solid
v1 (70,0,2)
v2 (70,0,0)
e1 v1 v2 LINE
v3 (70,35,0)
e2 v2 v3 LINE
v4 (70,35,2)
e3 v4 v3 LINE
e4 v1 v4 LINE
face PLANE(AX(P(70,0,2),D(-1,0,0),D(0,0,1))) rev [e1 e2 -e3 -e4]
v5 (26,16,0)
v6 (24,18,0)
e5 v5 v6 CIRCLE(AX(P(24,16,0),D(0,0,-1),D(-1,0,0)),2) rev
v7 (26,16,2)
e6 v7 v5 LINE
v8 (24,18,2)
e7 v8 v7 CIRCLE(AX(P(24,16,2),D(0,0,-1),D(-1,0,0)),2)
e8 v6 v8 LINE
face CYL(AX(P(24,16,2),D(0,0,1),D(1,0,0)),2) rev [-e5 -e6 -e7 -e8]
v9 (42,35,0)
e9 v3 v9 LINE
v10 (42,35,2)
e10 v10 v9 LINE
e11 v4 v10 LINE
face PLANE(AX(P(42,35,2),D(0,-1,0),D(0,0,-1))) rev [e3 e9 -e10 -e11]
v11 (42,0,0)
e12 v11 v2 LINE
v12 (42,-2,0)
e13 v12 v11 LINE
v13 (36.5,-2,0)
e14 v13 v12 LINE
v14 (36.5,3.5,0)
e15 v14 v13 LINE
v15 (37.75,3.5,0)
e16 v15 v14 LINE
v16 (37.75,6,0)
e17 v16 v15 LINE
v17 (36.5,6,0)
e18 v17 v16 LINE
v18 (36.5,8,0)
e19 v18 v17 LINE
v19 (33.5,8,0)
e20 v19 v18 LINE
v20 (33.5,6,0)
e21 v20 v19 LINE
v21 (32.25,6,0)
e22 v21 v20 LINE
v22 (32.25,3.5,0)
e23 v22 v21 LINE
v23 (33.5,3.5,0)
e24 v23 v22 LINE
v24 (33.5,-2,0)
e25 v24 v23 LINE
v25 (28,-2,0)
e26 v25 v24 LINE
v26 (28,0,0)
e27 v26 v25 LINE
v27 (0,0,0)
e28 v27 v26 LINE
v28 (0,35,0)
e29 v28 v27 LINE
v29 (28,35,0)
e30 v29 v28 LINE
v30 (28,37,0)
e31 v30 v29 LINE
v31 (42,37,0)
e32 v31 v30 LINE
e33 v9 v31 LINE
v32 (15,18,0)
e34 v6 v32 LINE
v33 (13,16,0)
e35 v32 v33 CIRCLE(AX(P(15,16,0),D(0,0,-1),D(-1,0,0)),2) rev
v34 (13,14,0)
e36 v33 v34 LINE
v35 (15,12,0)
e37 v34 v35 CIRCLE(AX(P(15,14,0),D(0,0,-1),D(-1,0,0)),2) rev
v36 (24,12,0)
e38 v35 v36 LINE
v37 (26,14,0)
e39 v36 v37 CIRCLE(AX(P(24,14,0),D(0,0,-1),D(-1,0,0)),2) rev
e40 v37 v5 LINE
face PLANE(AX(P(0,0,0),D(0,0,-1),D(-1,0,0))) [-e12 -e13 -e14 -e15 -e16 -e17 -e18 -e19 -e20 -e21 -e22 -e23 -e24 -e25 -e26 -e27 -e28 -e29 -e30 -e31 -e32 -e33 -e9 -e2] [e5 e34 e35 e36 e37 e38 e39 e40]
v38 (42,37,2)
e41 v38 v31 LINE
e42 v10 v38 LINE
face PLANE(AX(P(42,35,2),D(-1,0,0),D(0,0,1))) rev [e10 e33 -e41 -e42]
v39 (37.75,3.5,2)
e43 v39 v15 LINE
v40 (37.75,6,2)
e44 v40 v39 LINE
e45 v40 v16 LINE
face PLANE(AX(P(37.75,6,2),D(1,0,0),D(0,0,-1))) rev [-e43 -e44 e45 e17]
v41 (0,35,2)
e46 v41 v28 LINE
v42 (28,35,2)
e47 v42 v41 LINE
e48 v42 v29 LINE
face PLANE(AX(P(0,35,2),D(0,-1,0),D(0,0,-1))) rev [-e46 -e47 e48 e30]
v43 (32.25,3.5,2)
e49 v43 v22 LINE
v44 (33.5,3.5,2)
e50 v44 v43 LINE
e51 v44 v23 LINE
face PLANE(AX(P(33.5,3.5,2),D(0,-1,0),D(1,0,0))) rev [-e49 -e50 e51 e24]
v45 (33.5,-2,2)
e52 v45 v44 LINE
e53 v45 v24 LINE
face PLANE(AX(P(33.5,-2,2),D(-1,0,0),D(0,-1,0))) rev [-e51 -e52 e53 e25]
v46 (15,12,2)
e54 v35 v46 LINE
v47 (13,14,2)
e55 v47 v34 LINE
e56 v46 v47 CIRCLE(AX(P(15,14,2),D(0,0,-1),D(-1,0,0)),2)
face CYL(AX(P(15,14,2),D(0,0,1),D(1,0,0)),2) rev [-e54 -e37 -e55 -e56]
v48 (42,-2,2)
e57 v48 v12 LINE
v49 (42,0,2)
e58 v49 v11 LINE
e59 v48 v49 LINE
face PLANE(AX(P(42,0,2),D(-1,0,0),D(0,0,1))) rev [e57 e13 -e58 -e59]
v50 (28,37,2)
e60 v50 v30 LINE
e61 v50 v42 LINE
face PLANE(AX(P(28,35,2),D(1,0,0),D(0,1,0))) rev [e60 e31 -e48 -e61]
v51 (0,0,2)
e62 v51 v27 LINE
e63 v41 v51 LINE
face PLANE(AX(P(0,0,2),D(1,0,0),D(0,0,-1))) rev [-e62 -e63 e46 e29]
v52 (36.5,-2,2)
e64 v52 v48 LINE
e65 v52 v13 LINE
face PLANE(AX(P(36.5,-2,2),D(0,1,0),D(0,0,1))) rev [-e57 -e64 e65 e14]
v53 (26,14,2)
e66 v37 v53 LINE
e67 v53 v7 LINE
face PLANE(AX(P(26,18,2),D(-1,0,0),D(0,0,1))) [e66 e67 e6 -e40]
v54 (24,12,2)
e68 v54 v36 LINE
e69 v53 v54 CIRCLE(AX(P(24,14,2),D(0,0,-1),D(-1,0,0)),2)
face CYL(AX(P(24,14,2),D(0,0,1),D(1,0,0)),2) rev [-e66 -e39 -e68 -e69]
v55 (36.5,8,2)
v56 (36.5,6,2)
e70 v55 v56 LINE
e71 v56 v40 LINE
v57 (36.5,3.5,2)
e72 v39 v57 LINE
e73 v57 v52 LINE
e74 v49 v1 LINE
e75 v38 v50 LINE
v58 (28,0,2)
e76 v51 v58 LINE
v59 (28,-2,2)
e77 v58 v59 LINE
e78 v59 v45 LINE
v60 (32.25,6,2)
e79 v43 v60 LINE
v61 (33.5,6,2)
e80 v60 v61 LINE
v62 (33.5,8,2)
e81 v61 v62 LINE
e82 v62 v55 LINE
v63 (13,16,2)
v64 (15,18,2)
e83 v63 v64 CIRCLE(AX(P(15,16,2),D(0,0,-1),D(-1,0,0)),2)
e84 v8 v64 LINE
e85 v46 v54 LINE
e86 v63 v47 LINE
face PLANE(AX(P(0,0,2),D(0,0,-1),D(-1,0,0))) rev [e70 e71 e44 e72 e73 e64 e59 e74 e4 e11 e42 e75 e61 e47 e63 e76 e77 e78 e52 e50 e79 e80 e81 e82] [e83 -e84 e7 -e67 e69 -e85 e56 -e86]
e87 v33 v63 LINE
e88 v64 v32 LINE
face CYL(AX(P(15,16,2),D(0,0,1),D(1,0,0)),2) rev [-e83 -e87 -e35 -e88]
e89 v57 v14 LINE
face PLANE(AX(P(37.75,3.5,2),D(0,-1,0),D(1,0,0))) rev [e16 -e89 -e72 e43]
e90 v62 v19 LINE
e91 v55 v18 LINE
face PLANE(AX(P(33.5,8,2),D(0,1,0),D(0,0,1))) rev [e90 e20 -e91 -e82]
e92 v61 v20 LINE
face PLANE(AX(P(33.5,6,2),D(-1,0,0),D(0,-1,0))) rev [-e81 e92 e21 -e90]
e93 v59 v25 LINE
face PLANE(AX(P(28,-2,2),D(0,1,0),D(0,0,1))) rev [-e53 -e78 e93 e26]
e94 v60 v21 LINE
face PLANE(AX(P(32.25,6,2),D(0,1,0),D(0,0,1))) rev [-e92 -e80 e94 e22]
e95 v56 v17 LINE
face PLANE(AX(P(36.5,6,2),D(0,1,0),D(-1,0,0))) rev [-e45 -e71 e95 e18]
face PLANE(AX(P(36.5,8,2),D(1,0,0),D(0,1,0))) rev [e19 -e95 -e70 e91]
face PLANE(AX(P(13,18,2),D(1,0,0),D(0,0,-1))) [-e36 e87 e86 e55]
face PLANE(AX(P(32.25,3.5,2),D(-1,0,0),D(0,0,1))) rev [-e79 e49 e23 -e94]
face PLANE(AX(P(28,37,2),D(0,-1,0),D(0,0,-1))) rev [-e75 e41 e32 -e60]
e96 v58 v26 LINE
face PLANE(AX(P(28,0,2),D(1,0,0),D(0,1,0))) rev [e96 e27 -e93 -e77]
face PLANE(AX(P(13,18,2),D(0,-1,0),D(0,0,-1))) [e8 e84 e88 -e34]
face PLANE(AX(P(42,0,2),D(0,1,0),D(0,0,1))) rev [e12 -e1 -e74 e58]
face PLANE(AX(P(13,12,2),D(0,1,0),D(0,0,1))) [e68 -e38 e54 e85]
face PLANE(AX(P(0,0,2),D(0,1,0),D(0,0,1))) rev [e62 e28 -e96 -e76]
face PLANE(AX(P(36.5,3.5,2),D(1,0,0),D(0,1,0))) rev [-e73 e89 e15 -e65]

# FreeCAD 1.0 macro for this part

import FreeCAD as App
import Part
import Sketcher
from FreeCAD import Vector
Q = App.Units.Quantity


def edges_at(feature, points):
    """Names of the edges that pass closest to the given points."""
    edges = feature.Shape.Edges
    near = lambda p: min(range(len(edges)), key=lambda i: edges[i].distToShape(Part.Vertex(*p))[0])
    return sorted({f"Edge{near(p) + 1}" for p in points})

doc = App.newDocument("Part")
body = doc.addObject("PartDesign::Body", "Body")

# Sketch on XY plane
sketch1 = doc.addObject("Sketcher::SketchObject", "Sketch")
body.addObject(sketch1)
sketch1.AttachmentSupport = (doc.XY_Plane, [""])
sketch1.MapMode = "FlatFace"
sketch1.addGeometry([
    Part.LineSegment(Vector(70, 35, 0), Vector(42, 35, 0)),  # 0
    Part.LineSegment(Vector(42, 35, 0), Vector(42, 37, 0)),  # 1
    Part.LineSegment(Vector(42, 37, 0), Vector(28, 37, 0)),  # 2
    Part.LineSegment(Vector(28, 37, 0), Vector(28, 35, 0)),  # 3
    Part.LineSegment(Vector(28, 35, 0), Vector(0, 35, 0)),  # 4
    Part.LineSegment(Vector(0, 35, 0), Vector(0, 0, 0)),  # 5
    Part.LineSegment(Vector(0, 0, 0), Vector(28, 0, 0)),  # 6
    Part.LineSegment(Vector(28, 0, 0), Vector(28, -2, 0)),  # 7
    Part.LineSegment(Vector(28, -2, 0), Vector(33.5, -2, 0)),  # 8
    Part.LineSegment(Vector(33.5, -2, 0), Vector(33.5, 3.5, 0)),  # 9
    Part.LineSegment(Vector(33.5, 3.5, 0), Vector(32.25, 3.5, 0)),  # 10
    Part.LineSegment(Vector(32.25, 3.5, 0), Vector(32.25, 6, 0)),  # 11
    Part.LineSegment(Vector(32.25, 6, 0), Vector(33.5, 6, 0)),  # 12
    Part.LineSegment(Vector(33.5, 6, 0), Vector(33.5, 8, 0)),  # 13
    Part.LineSegment(Vector(33.5, 8, 0), Vector(36.5, 8, 0)),  # 14
    Part.LineSegment(Vector(36.5, 8, 0), Vector(36.5, 6, 0)),  # 15
    Part.LineSegment(Vector(36.5, 6, 0), Vector(37.75, 6, 0)),  # 16
    Part.LineSegment(Vector(37.75, 6, 0), Vector(37.75, 3.5, 0)),  # 17
    Part.LineSegment(Vector(37.75, 3.5, 0), Vector(36.5, 3.5, 0)),  # 18
    Part.LineSegment(Vector(36.5, 3.5, 0), Vector(36.5, -2, 0)),  # 19
    Part.LineSegment(Vector(36.5, -2, 0), Vector(42, -2, 0)),  # 20
    Part.LineSegment(Vector(42, -2, 0), Vector(42, 0, 0)),  # 21
    Part.LineSegment(Vector(42, 0, 0), Vector(70, 0, 0)),  # 22
    Part.LineSegment(Vector(70, 0, 0), Vector(70, 35, 0)),  # 23
    Part.LineSegment(Vector(13, 12, 0), Vector(13, 18, 0)),  # 24
    Part.LineSegment(Vector(13, 18, 0), Vector(26, 18, 0)),  # 25
    Part.LineSegment(Vector(26, 18, 0), Vector(26, 12, 0)),  # 26
    Part.LineSegment(Vector(26, 12, 0), Vector(13, 12, 0)),  # 27
], False)
sketch1.addConstraint([
    Sketcher.Constraint("Coincident", 0, 2, 1, 1),
    Sketcher.Constraint("Coincident", 1, 2, 2, 1),
    Sketcher.Constraint("Coincident", 2, 2, 3, 1),
    Sketcher.Constraint("Coincident", 3, 2, 4, 1),
    Sketcher.Constraint("Coincident", 4, 2, 5, 1),
    Sketcher.Constraint("Coincident", 5, 2, 6, 1),
    Sketcher.Constraint("Coincident", 6, 2, 7, 1),
    Sketcher.Constraint("Coincident", 7, 2, 8, 1),
    Sketcher.Constraint("Coincident", 8, 2, 9, 1),
    Sketcher.Constraint("Coincident", 9, 2, 10, 1),
    Sketcher.Constraint("Coincident", 10, 2, 11, 1),
    Sketcher.Constraint("Coincident", 11, 2, 12, 1),
    Sketcher.Constraint("Coincident", 12, 2, 13, 1),
    Sketcher.Constraint("Coincident", 13, 2, 14, 1),
    Sketcher.Constraint("Coincident", 14, 2, 15, 1),
    Sketcher.Constraint("Coincident", 15, 2, 16, 1),
    Sketcher.Constraint("Coincident", 16, 2, 17, 1),
    Sketcher.Constraint("Coincident", 17, 2, 18, 1),
    Sketcher.Constraint("Coincident", 18, 2, 19, 1),
    Sketcher.Constraint("Coincident", 19, 2, 20, 1),
    Sketcher.Constraint("Coincident", 20, 2, 21, 1),
    Sketcher.Constraint("Coincident", 21, 2, 22, 1),
    Sketcher.Constraint("Coincident", 22, 2, 23, 1),
    Sketcher.Constraint("Coincident", 23, 2, 0, 1),
    Sketcher.Constraint("Coincident", 24, 2, 25, 1),
    Sketcher.Constraint("Coincident", 25, 2, 26, 1),
    Sketcher.Constraint("Coincident", 26, 2, 27, 1),
    Sketcher.Constraint("Coincident", 27, 2, 24, 1),
    Sketcher.Constraint("Horizontal", 0),
    Sketcher.Constraint("Vertical", 1),
    Sketcher.Constraint("Horizontal", 2),
    Sketcher.Constraint("Vertical", 3),
    Sketcher.Constraint("Horizontal", 4),
    Sketcher.Constraint("Vertical", 5),
    Sketcher.Constraint("Horizontal", 6),
    Sketcher.Constraint("Vertical", 7),
    Sketcher.Constraint("Horizontal", 8),
    Sketcher.Constraint("Vertical", 9),
    Sketcher.Constraint("Horizontal", 10),
    Sketcher.Constraint("Vertical", 11),
    Sketcher.Constraint("Horizontal", 12),
    Sketcher.Constraint("Vertical", 13),
    Sketcher.Constraint("Horizontal", 14),
    Sketcher.Constraint("Vertical", 15),
    Sketcher.Constraint("Horizontal", 16),
    Sketcher.Constraint("Vertical", 17),
    Sketcher.Constraint("Horizontal", 18),
    Sketcher.Constraint("Vertical", 19),
    Sketcher.Constraint("Horizontal", 20),
    Sketcher.Constraint("Vertical", 21),
    Sketcher.Constraint("Horizontal", 22),
    Sketcher.Constraint("Vertical", 23),
    Sketcher.Constraint("Vertical", 24),
    Sketcher.Constraint("Horizontal", 25),
    Sketcher.Constraint("Vertical", 26),
    Sketcher.Constraint("Horizontal", 27),
    Sketcher.Constraint("Coincident", 5, 2, -1, 1),
    Sketcher.Constraint("PointOnObject", 21, 2, -1),
    Sketcher.Constraint("Horizontal", 0, 2, 3, 2),
    Sketcher.Constraint("Horizontal", 12, 2, 15, 2),
    Sketcher.Constraint("Horizontal", 10, 2, 17, 2),
    Sketcher.Constraint("Horizontal", 8, 2, 19, 2),
    Sketcher.Constraint("Vertical", 3, 2, 6, 2),
    Sketcher.Constraint("Vertical", 9, 2, 12, 2),
    Sketcher.Constraint("Vertical", 15, 2, 18, 2),
    Sketcher.Constraint("Vertical", 1, 2, 20, 2),
    Sketcher.Constraint("Equal", 0, 4),
    Sketcher.Constraint("Equal", 12, 16),
    Sketcher.Constraint("Equal", 8, 20),
    Sketcher.Constraint("Equal", 3, 7),
    Sketcher.Constraint("Equal", 20, 9),
    Sketcher.Constraint("Equal", 7, 13),
    Sketcher.Constraint("DistanceX", 0, 2, 0, 1, Q("28 mm")),
    Sketcher.Constraint("DistanceX", 2, 2, 2, 1, Q("14 mm")),
    Sketcher.Constraint("DistanceX", 14, 1, 14, 2, Q("3 mm")),
    Sketcher.Constraint("DistanceX", 25, 1, 25, 2, Q("13 mm")),
    Sketcher.Constraint("DistanceY", 1, 1, 1, 2, Q("2 mm")),
    Sketcher.Constraint("DistanceY", 5, 2, 5, 1, Q("35 mm")),
    Sketcher.Constraint("DistanceY", 24, 1, 24, 2, Q("6 mm")),
    Sketcher.Constraint("DistanceY", 11, 1, 11, 2, Q("2.5 mm")),
    Sketcher.Constraint("DistanceX", -1, 1, 24, 2, Q("13 mm")),
    Sketcher.Constraint("DistanceY", -1, 1, 24, 2, Q("18 mm")),
    Sketcher.Constraint("DistanceX", 10, 2, 10, 1, Q("1.25 mm")),
])
pad1 = doc.addObject("PartDesign::Pad", "Pad")
body.addObject(pad1)
pad1.Profile = sketch1
pad1.Length = 2
doc.recompute()

fillet = doc.addObject("PartDesign::Fillet", "Fillet")
body.addObject(fillet)
fillet.Base = (pad1, edges_at(pad1, [
    (26, 12, 1),
    (26, 18, 1),
    (13, 18, 1),
    (13, 12, 1),
]))
fillet.Radius = 2

doc.recompute()
